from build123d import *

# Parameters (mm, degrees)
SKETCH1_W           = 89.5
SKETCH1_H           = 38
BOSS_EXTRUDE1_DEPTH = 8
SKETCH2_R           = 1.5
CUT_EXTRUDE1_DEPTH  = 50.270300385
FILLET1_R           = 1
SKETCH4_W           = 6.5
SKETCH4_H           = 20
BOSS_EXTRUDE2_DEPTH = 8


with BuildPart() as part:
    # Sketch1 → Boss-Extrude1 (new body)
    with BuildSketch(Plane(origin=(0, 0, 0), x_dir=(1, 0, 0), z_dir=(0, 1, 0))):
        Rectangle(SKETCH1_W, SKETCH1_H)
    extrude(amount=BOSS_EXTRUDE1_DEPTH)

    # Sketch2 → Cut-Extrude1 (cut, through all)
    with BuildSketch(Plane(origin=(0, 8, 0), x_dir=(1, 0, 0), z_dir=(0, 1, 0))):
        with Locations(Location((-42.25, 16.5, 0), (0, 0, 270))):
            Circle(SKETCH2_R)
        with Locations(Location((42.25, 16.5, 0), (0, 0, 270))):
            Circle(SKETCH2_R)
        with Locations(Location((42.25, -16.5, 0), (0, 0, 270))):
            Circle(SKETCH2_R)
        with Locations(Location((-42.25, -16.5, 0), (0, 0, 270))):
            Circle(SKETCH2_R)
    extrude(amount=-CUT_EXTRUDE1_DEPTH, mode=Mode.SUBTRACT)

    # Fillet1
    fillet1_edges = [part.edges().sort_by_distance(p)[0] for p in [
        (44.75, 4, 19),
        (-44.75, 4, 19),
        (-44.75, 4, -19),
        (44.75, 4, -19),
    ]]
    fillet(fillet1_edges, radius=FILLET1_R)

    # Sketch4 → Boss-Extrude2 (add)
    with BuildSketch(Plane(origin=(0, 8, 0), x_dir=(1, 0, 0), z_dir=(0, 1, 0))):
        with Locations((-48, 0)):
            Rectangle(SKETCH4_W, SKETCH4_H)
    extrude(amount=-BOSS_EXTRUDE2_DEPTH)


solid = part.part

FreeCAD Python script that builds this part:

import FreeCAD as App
import Part
import Sketcher
from FreeCAD import Vector


def edges_at(feature, points):
    """Names of the edges that pass closest to the given points."""
    edges = feature.Shape.Edges
    near = lambda p: min(range(len(edges)), key=lambda i: edges[i].distToShape(Part.Vertex(*p))[0])
    return sorted({f"Edge{near(p) + 1}" for p in points})

doc = App.newDocument("Part")
body = doc.addObject("PartDesign::Body", "Body")

# Sketch on XZ plane
sketch1 = body.newObject("Sketcher::SketchObject", "Sketch")
sketch1.AttachmentSupport = (doc.getObject("XZ_Plane"), [""])
sketch1.MapMode = "FlatFace"
sketch1.addGeometry([
    Part.LineSegment(Vector(-45, -19, 0), Vector(-45, 19, 0)),
    Part.LineSegment(Vector(-45, 19, 0), Vector(45, 19, 0)),
    Part.LineSegment(Vector(45, 19, 0), Vector(45, -19, 0)),
    Part.LineSegment(Vector(45, -19, 0), Vector(-45, -19, 0)),
], False)
sketch1.addConstraint([
    Sketcher.Constraint("Coincident", 0, 2, 1, 1),
    Sketcher.Constraint("Coincident", 1, 2, 2, 1),
    Sketcher.Constraint("Coincident", 2, 2, 3, 1),
    Sketcher.Constraint("Coincident", 3, 2, 0, 1),
    Sketcher.Constraint("Vertical", 0),
    Sketcher.Constraint("Horizontal", 1),
    Sketcher.Constraint("Vertical", 2),
    Sketcher.Constraint("Horizontal", 3),
    Sketcher.Constraint("Symmetric", 0, 2, 2, 2, -1, 1),
    Sketcher.Constraint("DistanceY", 0, 1, 0, 2, 38.0),
    Sketcher.Constraint("DistanceX", 1, 1, 1, 2, 89.5),
])
pad1 = body.newObject("PartDesign::Pad", "Pad")
pad1.Profile = sketch1
pad1.Length = 8
pad1.Reversed = True

# Sketch on XZ plane
sketch2 = body.newObject("Sketcher::SketchObject", "Sketch001")
sketch2.AttachmentSupport = (doc.getObject("XZ_Plane"), [""])
sketch2.MapMode = "FlatFace"
sketch2.AttachmentOffset = App.Placement(Vector(0, 0, -8), App.Rotation())
sketch2.addGeometry([
    Part.Circle(Vector(-42.2, -16.5, 0), Vector(0, 0, 1), 1.5),
    Part.Circle(Vector(42.2, -16.5, 0), Vector(0, 0, 1), 1.5),
    Part.Circle(Vector(42.2, 16.5, 0), Vector(0, 0, 1), 1.5),
    Part.Circle(Vector(-42.2, 16.5, 0), Vector(0, 0, 1), 1.5),
], False)
sketch2.addConstraint([
    Sketcher.Constraint("Equal", 0, 1),
    Sketcher.Constraint("Equal", 1, 2),
    Sketcher.Constraint("Equal", 2, 3),
    Sketcher.Constraint("Symmetric", 0, 3, 2, 3, -1, 1),
    Sketcher.Constraint("Symmetric", 1, 3, 3, 3, -1, 1),
    Sketcher.Constraint("Symmetric", 0, 3, 1, 3, -2),
    Sketcher.Constraint("Diameter", 0, 3.0),
    Sketcher.Constraint("DistanceY", 1, 3, 2, 3, 33.0),
    Sketcher.Constraint("DistanceX", 0, 3, 1, 3, 84.5),
])
pocket1 = body.newObject("PartDesign::Pocket", "Pocket")
pocket1.Profile = sketch2
pocket1.Type = "ThroughAll"
pocket1.Reversed = True
doc.recompute()

fillet = body.newObject("PartDesign::Fillet", "Fillet")
fillet.Base = (pocket1, edges_at(pocket1, [
    (44.75, 4, 19),
    (-44.75, 4, 19),
    (-44.75, 4, -19),
    (44.75, 4, -19),
]))
fillet.Radius = 1

# Sketch on XZ plane
sketch3 = body.newObject("Sketcher::SketchObject", "Sketch002")
sketch3.AttachmentSupport = (doc.getObject("XZ_Plane"), [""])
sketch3.MapMode = "FlatFace"
sketch3.AttachmentOffset = App.Placement(Vector(0, 0, -8), App.Rotation())
sketch3.addGeometry([
    Part.LineSegment(Vector(-51, -10, 0), Vector(-51, 10, 0)),
    Part.LineSegment(Vector(-51, 10, 0), Vector(-45, 10, 0)),
    Part.LineSegment(Vector(-45, 10, 0), Vector(-45, -10, 0)),
    Part.LineSegment(Vector(-45, -10, 0), Vector(-51, -10, 0)),
], False)
sketch3.addConstraint([
    Sketcher.Constraint("Coincident", 0, 2, 1, 1),
    Sketcher.Constraint("Coincident", 1, 2, 2, 1),
    Sketcher.Constraint("Coincident", 2, 2, 3, 1),
    Sketcher.Constraint("Coincident", 3, 2, 0, 1),
    Sketcher.Constraint("Vertical", 0),
    Sketcher.Constraint("Horizontal", 1),
    Sketcher.Constraint("Vertical", 2),
    Sketcher.Constraint("Horizontal", 3),
    Sketcher.Constraint("DistanceY", 0, 1, 0, 2, 20.0),
    Sketcher.Constraint("DistanceX", 1, 1, 1, 2, 6.5),
    Sketcher.Constraint("DistanceY", -1, 1, 0, 2, 10.0),
    Sketcher.Constraint("DistanceX", 0, 2, -1, 1, 51.25),
])
pad2 = body.newObject("PartDesign::Pad", "Pad001")
pad2.Profile = sketch3
pad2.Length = 8

doc.recompute()
